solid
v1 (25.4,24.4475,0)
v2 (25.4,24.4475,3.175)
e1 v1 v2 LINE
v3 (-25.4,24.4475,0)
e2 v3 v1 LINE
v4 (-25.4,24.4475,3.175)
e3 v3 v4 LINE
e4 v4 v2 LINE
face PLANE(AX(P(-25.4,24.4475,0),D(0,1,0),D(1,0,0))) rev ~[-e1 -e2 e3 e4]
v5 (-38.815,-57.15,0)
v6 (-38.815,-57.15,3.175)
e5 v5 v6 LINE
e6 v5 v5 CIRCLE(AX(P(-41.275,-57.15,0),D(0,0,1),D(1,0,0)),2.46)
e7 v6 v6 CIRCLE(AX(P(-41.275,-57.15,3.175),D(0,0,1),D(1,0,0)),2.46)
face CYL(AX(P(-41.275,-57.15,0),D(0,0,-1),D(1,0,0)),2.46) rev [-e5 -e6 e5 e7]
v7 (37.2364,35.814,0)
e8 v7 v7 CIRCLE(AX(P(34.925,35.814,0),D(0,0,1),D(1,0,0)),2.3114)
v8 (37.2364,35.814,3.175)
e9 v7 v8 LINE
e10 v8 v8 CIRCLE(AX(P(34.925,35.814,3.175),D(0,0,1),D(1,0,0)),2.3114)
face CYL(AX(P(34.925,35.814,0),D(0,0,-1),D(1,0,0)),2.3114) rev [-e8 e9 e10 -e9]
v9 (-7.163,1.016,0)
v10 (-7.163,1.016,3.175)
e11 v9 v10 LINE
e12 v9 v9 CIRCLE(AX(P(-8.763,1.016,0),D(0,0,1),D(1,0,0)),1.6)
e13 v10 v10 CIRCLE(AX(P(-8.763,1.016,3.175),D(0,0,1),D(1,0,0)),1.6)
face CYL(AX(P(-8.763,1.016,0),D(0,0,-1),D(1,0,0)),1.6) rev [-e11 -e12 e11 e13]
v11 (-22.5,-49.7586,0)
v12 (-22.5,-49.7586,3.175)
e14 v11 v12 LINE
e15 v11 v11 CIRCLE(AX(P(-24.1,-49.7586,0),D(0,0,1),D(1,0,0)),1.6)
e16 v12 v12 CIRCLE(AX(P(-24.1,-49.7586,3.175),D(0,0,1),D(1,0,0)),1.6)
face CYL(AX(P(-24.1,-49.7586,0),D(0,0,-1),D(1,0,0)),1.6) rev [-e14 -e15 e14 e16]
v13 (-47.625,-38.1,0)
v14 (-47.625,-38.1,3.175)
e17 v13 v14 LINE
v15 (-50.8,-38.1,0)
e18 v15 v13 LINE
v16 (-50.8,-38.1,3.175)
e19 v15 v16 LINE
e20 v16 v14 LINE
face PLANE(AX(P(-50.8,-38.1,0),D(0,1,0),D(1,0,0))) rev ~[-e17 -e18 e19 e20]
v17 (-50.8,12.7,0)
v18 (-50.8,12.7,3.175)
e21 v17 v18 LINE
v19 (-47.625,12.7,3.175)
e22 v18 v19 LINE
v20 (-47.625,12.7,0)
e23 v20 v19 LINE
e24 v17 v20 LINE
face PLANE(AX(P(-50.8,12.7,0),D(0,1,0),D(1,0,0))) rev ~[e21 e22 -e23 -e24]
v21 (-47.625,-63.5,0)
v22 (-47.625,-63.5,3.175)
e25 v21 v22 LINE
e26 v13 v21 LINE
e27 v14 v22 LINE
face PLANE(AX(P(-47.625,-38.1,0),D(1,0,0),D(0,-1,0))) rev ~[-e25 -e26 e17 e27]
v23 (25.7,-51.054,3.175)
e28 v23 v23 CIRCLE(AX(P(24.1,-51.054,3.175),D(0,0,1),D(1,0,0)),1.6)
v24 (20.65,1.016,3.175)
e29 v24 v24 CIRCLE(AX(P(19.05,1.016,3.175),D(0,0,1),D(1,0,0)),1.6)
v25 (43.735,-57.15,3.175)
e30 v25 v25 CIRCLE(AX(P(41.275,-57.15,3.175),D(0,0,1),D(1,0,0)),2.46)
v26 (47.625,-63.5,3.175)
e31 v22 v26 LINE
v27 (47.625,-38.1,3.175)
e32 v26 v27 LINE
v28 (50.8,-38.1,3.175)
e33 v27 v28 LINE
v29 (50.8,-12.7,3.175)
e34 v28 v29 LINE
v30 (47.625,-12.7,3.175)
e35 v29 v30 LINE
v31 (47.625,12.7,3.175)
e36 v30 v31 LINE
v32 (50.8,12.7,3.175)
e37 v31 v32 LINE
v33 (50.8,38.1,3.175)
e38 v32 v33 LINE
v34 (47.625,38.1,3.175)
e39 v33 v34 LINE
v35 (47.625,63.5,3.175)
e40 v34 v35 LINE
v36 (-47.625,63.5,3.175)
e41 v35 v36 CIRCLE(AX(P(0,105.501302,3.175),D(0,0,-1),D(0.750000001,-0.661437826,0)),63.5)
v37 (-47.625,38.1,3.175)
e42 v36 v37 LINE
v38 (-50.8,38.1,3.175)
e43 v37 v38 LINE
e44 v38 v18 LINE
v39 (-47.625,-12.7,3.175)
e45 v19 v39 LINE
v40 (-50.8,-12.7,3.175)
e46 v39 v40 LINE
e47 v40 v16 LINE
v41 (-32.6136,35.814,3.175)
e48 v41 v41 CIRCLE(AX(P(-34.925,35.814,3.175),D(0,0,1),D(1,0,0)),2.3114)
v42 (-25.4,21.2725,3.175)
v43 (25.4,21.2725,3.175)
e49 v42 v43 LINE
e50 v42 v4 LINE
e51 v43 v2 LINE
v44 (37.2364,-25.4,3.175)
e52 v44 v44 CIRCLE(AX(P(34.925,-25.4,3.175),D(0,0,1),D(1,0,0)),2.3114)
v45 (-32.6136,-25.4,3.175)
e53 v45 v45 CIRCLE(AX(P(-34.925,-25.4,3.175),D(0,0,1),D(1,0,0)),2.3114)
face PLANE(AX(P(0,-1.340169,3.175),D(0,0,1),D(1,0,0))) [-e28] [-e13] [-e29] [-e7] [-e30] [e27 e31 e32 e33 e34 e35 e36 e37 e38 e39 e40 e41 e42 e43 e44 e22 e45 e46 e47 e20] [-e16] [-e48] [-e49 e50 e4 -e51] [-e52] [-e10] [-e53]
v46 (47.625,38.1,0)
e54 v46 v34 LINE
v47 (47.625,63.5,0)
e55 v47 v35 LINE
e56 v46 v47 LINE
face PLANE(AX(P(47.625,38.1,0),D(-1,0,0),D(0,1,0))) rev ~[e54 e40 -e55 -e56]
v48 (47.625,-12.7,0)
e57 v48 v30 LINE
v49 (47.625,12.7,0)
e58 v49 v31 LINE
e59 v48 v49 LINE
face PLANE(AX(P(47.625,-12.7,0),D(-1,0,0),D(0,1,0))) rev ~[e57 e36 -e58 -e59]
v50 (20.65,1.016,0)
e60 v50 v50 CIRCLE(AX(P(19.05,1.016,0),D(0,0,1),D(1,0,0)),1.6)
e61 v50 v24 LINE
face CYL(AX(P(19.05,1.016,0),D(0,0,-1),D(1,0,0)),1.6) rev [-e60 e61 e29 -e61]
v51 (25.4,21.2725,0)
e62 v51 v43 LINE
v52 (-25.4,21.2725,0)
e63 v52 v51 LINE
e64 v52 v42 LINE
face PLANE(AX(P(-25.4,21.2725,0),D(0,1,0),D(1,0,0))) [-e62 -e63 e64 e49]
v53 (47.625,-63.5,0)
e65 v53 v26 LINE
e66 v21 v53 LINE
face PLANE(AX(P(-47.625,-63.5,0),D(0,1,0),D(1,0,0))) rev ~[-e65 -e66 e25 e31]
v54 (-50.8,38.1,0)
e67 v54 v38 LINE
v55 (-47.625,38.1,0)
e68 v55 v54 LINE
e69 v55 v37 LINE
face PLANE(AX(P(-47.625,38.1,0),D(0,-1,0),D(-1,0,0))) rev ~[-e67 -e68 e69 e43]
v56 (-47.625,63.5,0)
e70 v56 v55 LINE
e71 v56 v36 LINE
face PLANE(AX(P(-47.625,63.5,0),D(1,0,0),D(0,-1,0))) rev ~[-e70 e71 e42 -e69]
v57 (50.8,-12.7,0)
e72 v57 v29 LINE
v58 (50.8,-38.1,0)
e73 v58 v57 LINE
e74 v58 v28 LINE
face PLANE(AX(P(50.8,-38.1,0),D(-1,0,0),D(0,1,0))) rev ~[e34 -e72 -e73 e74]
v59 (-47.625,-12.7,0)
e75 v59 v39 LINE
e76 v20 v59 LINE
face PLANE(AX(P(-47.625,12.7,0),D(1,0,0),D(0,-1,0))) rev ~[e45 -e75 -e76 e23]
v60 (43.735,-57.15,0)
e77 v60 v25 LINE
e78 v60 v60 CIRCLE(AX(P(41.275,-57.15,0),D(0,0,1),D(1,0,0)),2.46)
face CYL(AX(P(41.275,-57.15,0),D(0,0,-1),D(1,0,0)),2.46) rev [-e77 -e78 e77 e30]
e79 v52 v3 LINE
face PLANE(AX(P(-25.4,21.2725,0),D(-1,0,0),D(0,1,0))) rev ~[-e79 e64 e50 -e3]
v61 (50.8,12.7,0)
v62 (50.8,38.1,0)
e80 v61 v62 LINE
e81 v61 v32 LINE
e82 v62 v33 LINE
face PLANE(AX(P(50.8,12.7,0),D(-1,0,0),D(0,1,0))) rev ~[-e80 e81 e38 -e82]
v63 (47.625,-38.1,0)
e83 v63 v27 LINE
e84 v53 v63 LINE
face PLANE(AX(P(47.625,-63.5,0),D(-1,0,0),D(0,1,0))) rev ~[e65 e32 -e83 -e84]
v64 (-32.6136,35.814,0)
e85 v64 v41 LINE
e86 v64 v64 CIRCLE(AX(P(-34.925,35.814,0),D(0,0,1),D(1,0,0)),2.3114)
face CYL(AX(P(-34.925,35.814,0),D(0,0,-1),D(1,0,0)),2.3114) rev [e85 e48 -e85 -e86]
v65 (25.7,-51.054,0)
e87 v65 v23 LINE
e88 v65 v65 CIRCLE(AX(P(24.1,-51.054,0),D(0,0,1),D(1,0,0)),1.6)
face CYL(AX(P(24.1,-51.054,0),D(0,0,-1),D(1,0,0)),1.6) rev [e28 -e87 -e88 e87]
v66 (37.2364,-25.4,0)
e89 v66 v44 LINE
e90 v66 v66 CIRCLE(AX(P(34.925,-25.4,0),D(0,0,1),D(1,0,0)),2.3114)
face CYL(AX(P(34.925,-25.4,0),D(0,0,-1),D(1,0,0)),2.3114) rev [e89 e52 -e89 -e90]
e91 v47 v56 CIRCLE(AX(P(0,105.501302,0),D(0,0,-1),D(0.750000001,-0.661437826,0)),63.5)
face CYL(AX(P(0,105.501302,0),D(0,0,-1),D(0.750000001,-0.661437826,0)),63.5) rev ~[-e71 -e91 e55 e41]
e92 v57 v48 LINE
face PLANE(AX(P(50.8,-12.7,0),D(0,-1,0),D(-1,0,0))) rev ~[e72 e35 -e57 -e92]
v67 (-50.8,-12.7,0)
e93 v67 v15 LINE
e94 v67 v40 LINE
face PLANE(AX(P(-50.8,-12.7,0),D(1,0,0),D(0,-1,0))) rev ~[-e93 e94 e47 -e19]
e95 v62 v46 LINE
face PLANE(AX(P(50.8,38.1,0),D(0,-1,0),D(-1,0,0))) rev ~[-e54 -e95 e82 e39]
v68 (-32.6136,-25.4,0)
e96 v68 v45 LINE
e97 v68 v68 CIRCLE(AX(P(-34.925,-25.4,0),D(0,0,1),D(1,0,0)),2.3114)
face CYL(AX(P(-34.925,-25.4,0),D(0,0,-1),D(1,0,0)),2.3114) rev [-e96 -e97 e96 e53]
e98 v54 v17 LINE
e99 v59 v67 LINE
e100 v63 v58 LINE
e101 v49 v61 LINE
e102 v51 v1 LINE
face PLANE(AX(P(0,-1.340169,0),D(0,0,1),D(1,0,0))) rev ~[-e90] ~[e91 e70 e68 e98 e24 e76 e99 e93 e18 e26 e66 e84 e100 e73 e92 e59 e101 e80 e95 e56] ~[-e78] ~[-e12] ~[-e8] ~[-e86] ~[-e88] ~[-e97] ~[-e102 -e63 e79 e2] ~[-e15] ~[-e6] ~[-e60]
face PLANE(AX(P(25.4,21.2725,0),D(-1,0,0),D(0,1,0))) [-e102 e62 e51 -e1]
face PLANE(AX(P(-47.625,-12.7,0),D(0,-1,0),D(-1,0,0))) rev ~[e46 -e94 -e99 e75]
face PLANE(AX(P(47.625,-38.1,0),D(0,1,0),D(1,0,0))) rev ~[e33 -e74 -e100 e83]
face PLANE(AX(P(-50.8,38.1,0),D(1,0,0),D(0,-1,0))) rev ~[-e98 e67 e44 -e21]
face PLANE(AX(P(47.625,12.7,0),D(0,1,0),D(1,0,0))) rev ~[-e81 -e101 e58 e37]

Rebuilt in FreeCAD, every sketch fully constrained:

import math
import FreeCAD as App
import Part
import Sketcher

V = App.Vector
Q = App.Units.Quantity


def add_polygon(sketch, points):
    """Adds a closed chain of lines whose ends are joined by coincident constraints."""
    first, n = sketch.GeometryCount, len(points)
    for a, b in zip(points, points[1:] + points[:1]):
        sketch.addGeometry(Part.LineSegment(App.Vector(*a, 0), App.Vector(*b, 0)), False)
    for i in range(n):
        sketch.addConstraint(Sketcher.Constraint("Coincident", first + i, 2, first + (i + 1) % n, 1))

doc = App.newDocument("Part")
params = doc.addObject("Spreadsheet::Sheet", "Params")
for row, (alias, value) in enumerate([
    ("sketch1_radius", "2.5 in"),
    ("sketch1_width", "2 in"),
    ("sketch1_height", "1 in"),
    ("sketch1_diameter", "0.182 in"),
    ("sketch1_width2", "3.75 in"),
    ("pad1_length", "0.125 in"),
], start=1):
    params.set(f"A{row}", alias)
    params.set(f"B{row}", "=" + value)
    params.setAlias(f"B{row}", alias)

body = doc.addObject("PartDesign::Body", "Body")

# Sketch on XY plane
sketch1 = doc.addObject("Sketcher::SketchObject", "Sketch")
body.addObject(sketch1)
sketch1.AttachmentSupport = (doc.XY_Plane, [""])
sketch1.MapMode = "FlatFace"
sketch1.addGeometry(Part.LineSegment(V(-47.6, -63.5, 0), V(47.6, -63.5, 0)), False)  # 0
sketch1.addGeometry(Part.LineSegment(V(47.6, -63.5, 0), V(47.6, -38.1, 0)), False)  # 1
sketch1.addGeometry(Part.LineSegment(V(47.6, -38.1, 0), V(50.8, -38.1, 0)), False)  # 2
sketch1.addGeometry(Part.LineSegment(V(50.8, -38.1, 0), V(50.8, -12.7, 0)), False)  # 3
sketch1.addGeometry(Part.LineSegment(V(50.8, -12.7, 0), V(47.6, -12.7, 0)), False)  # 4
sketch1.addGeometry(Part.LineSegment(V(47.6, -12.7, 0), V(47.6, 12.7, 0)), False)  # 5
sketch1.addGeometry(Part.LineSegment(V(47.6, 12.7, 0), V(50.8, 12.7, 0)), False)  # 6
sketch1.addGeometry(Part.LineSegment(V(50.8, 12.7, 0), V(50.8, 38.1, 0)), False)  # 7
sketch1.addGeometry(Part.LineSegment(V(50.8, 38.1, 0), V(47.6, 38.1, 0)), False)  # 8
sketch1.addGeometry(Part.LineSegment(V(47.6, 38.1, 0), V(47.6, 63.5, 0)), False)  # 9
sketch1.addGeometry(Part.ArcOfCircle(Part.Circle(V(0, 105.5, 0), V(0, 0, 1), 63.5), math.radians(-139), math.radians(-41)), False)  # 10
sketch1.addGeometry(Part.LineSegment(V(-47.6, 63.5, 0), V(-47.6, 38.1, 0)), False)  # 11
sketch1.addGeometry(Part.LineSegment(V(-47.6, 38.1, 0), V(-50.8, 38.1, 0)), False)  # 12
sketch1.addGeometry(Part.LineSegment(V(-50.8, 38.1, 0), V(-50.8, 12.7, 0)), False)  # 13
sketch1.addGeometry(Part.LineSegment(V(-50.8, 12.7, 0), V(-47.6, 12.7, 0)), False)  # 14
sketch1.addGeometry(Part.LineSegment(V(-47.6, 12.7, 0), V(-47.6, -12.7, 0)), False)  # 15
sketch1.addGeometry(Part.LineSegment(V(-47.6, -12.7, 0), V(-50.8, -12.7, 0)), False)  # 16
sketch1.addGeometry(Part.LineSegment(V(-50.8, -12.7, 0), V(-50.8, -38.1, 0)), False)  # 17
sketch1.addGeometry(Part.LineSegment(V(-50.8, -38.1, 0), V(-47.6, -38.1, 0)), False)  # 18
sketch1.addGeometry(Part.LineSegment(V(-47.6, -38.1, 0), V(-47.6, -63.5, 0)), False)  # 19
sketch1.addGeometry(Part.Circle(V(-41.3, -57.1, 0), V(0, 0, 1), 2.5), False)  # 20
sketch1.addGeometry(Part.Circle(V(-24.1, -49.8, 0), V(0, 0, 1), 1.6), False)  # 21
sketch1.addGeometry(Part.Circle(V(-34.9, -25.4, 0), V(0, 0, 1), 2.3), False)  # 22
sketch1.addGeometry(Part.Circle(V(24.1, -51.1, 0), V(0, 0, 1), 1.6), False)  # 23
sketch1.addGeometry(Part.Circle(V(41.3, -57.1, 0), V(0, 0, 1), 2.5), False)  # 24
sketch1.addGeometry(Part.Circle(V(34.9, -25.4, 0), V(0, 0, 1), 2.3), False)  # 25
sketch1.addGeometry(Part.Circle(V(-8.8, 1, 0), V(0, 0, 1), 1.6), False)  # 26
sketch1.addGeometry(Part.Circle(V(-34.9, 35.8, 0), V(0, 0, 1), 2.3), False)  # 27
sketch1.addGeometry(Part.Circle(V(19.1, 1, 0), V(0, 0, 1), 1.6), False)  # 28
add_polygon(sketch1, [(25.4, 21.3), (-25.4, 21.3), (-25.4, 24.4), (25.4, 24.4)])  # lines 29-32
sketch1.addGeometry(Part.Circle(V(34.9, 35.8, 0), V(0, 0, 1), 2.3), False)  # 33
sketch1.addConstraint([
    Sketcher.Constraint("Coincident", 0, 2, 1, 1),
    Sketcher.Constraint("Coincident", 1, 2, 2, 1),
    Sketcher.Constraint("Coincident", 2, 2, 3, 1),
    Sketcher.Constraint("Coincident", 3, 2, 4, 1),
    Sketcher.Constraint("Coincident", 4, 2, 5, 1),
    Sketcher.Constraint("Coincident", 5, 2, 6, 1),
    Sketcher.Constraint("Coincident", 6, 2, 7, 1),
    Sketcher.Constraint("Coincident", 7, 2, 8, 1),
    Sketcher.Constraint("Coincident", 8, 2, 9, 1),
    Sketcher.Constraint("Coincident", 9, 2, 10, 2),
    Sketcher.Constraint("Coincident", 10, 1, 11, 1),
    Sketcher.Constraint("Coincident", 11, 2, 12, 1),
    Sketcher.Constraint("Coincident", 12, 2, 13, 1),
    Sketcher.Constraint("Coincident", 13, 2, 14, 1),
    Sketcher.Constraint("Coincident", 14, 2, 15, 1),
    Sketcher.Constraint("Coincident", 15, 2, 16, 1),
    Sketcher.Constraint("Coincident", 16, 2, 17, 1),
    Sketcher.Constraint("Coincident", 17, 2, 18, 1),
    Sketcher.Constraint("Coincident", 18, 2, 19, 1),
    Sketcher.Constraint("Coincident", 19, 2, 0, 1),
    Sketcher.Constraint("Horizontal", 0),
    Sketcher.Constraint("Vertical", 1),
    Sketcher.Constraint("Horizontal", 2),
    Sketcher.Constraint("Vertical", 3),
    Sketcher.Constraint("Horizontal", 4),
    Sketcher.Constraint("Vertical", 5),
    Sketcher.Constraint("Horizontal", 6),
    Sketcher.Constraint("Vertical", 7),
    Sketcher.Constraint("Horizontal", 8),
    Sketcher.Constraint("Vertical", 9),
    Sketcher.Constraint("Vertical", 11),
    Sketcher.Constraint("Horizontal", 12),
    Sketcher.Constraint("Vertical", 13),
    Sketcher.Constraint("Horizontal", 14),
    Sketcher.Constraint("Vertical", 15),
    Sketcher.Constraint("Horizontal", 16),
    Sketcher.Constraint("Vertical", 17),
    Sketcher.Constraint("Horizontal", 18),
    Sketcher.Constraint("Vertical", 19),
    Sketcher.Constraint("Horizontal", 29),
    Sketcher.Constraint("Vertical", 30),
    Sketcher.Constraint("Horizontal", 31),
    Sketcher.Constraint("Vertical", 32),
    Sketcher.Constraint("Equal", 21, 23),
    Sketcher.Constraint("Equal", 20, 24),
    Sketcher.Constraint("Equal", 22, 25),
    Sketcher.Constraint("Equal", 23, 26),
    Sketcher.Constraint("Equal", 25, 27),
    Sketcher.Constraint("Equal", 26, 28),
    Sketcher.Constraint("Equal", 27, 33),
    Sketcher.Constraint("Symmetric", 0, 2, 10, 1, -1, 1),
    Sketcher.Constraint("Symmetric", 2, 2, 12, 2, -1, 1),
    Sketcher.Constraint("Symmetric", 4, 2, 14, 2, -1, 1),
    Sketcher.Constraint("Symmetric", 6, 2, 16, 2, -1, 1),
    Sketcher.Constraint("Symmetric", 8, 2, 18, 2, -1, 1),
    Sketcher.Constraint("Symmetric", 20, 3, 24, 3, -2),
    Sketcher.Constraint("Symmetric", 22, 3, 25, 3, -2),
    Sketcher.Constraint("Symmetric", 27, 3, 33, 3, -2),
    Sketcher.Constraint("Symmetric", 9, 2, 10, 1, -2),
    Sketcher.Constraint("Symmetric", 7, 2, 12, 2, -2),
    Sketcher.Constraint("Horizontal", 26, 3, 28, 3),
    Sketcher.Constraint("Horizontal", 6, 2, 13, 2),
    Sketcher.Constraint("Vertical", 22, 3, 27, 3),
    Sketcher.Constraint("Vertical", 1, 2, 4, 2),
    Sketcher.Constraint("Equal", 1, 3),
    Sketcher.Constraint("Equal", 3, 5),
    Sketcher.Constraint("Equal", 18, 30),
    Sketcher.Constraint("Radius", 10, Q("2.5 in")),
    Sketcher.Constraint("DistanceX", 29, 2, 29, 1, Q("2 in")),
    Sketcher.Constraint("DistanceY", 1, 1, 1, 2, Q("1 in")),
    Sketcher.Constraint("Diameter", 22, Q("0.182 in")),
    Sketcher.Constraint("DistanceY", 22, 3, -1, 1, Q("1 in")),
    Sketcher.Constraint("DistanceX", -1, 1, 2, 2, Q("2 in")),
    Sketcher.Constraint("DistanceX", 29, 2, -1, 1, Q("1 in")),
    Sketcher.Constraint("DistanceX", 22, 3, 24, 3, Q("3 in")),
    Sketcher.Constraint("DistanceX", 0, 1, 0, 2, Q("3.75 in")),
    Sketcher.Constraint("DistanceX", 25, 3, 0, 2, Q("0.5 in")),
    Sketcher.Constraint("Diameter", 20, 4.92),
    Sketcher.Constraint("Diameter", 21, 3.2),
    Sketcher.Constraint("DistanceY", 20, 3, -1, 1, Q("2.25 in")),
    Sketcher.Constraint("DistanceY", 23, 3, -1, 1, Q("2.01 in")),
    Sketcher.Constraint("DistanceY", -1, 1, 26, 3, Q("0.04 in")),
    Sketcher.Constraint("DistanceY", -1, 1, 27, 3, Q("1.41 in")),
    Sketcher.Constraint("DistanceX", -1, 1, 28, 3, Q("0.75 in")),
    Sketcher.Constraint("DistanceX", 22, 3, 26, 3, Q("1.03 in")),
    Sketcher.Constraint("DistanceY", 21, 3, -1, 1, Q("1.959 in")),
    Sketcher.Constraint("DistanceY", -1, 1, 29, 2, Q("0.8375 in")),
    Sketcher.Constraint("DistanceX", 21, 3, -1, 1, 24.1),
    Sketcher.Constraint("DistanceX", -1, 1, 23, 3, 24.1),
])
sketch1.setExpression("Constraints[71]", "Params.sketch1_radius")
sketch1.setExpression("Constraints[72]", "Params.sketch1_width")
sketch1.setExpression("Constraints[73]", "Params.sketch1_height")
sketch1.setExpression("Constraints[74]", "Params.sketch1_diameter")
sketch1.setExpression("Constraints[79]", "Params.sketch1_width2")
pad1 = doc.addObject("PartDesign::Pad", "Pad")
body.addObject(pad1)
pad1.Profile = sketch1
pad1.setExpression("Length", "Params.pad1_length")

doc.recompute()
